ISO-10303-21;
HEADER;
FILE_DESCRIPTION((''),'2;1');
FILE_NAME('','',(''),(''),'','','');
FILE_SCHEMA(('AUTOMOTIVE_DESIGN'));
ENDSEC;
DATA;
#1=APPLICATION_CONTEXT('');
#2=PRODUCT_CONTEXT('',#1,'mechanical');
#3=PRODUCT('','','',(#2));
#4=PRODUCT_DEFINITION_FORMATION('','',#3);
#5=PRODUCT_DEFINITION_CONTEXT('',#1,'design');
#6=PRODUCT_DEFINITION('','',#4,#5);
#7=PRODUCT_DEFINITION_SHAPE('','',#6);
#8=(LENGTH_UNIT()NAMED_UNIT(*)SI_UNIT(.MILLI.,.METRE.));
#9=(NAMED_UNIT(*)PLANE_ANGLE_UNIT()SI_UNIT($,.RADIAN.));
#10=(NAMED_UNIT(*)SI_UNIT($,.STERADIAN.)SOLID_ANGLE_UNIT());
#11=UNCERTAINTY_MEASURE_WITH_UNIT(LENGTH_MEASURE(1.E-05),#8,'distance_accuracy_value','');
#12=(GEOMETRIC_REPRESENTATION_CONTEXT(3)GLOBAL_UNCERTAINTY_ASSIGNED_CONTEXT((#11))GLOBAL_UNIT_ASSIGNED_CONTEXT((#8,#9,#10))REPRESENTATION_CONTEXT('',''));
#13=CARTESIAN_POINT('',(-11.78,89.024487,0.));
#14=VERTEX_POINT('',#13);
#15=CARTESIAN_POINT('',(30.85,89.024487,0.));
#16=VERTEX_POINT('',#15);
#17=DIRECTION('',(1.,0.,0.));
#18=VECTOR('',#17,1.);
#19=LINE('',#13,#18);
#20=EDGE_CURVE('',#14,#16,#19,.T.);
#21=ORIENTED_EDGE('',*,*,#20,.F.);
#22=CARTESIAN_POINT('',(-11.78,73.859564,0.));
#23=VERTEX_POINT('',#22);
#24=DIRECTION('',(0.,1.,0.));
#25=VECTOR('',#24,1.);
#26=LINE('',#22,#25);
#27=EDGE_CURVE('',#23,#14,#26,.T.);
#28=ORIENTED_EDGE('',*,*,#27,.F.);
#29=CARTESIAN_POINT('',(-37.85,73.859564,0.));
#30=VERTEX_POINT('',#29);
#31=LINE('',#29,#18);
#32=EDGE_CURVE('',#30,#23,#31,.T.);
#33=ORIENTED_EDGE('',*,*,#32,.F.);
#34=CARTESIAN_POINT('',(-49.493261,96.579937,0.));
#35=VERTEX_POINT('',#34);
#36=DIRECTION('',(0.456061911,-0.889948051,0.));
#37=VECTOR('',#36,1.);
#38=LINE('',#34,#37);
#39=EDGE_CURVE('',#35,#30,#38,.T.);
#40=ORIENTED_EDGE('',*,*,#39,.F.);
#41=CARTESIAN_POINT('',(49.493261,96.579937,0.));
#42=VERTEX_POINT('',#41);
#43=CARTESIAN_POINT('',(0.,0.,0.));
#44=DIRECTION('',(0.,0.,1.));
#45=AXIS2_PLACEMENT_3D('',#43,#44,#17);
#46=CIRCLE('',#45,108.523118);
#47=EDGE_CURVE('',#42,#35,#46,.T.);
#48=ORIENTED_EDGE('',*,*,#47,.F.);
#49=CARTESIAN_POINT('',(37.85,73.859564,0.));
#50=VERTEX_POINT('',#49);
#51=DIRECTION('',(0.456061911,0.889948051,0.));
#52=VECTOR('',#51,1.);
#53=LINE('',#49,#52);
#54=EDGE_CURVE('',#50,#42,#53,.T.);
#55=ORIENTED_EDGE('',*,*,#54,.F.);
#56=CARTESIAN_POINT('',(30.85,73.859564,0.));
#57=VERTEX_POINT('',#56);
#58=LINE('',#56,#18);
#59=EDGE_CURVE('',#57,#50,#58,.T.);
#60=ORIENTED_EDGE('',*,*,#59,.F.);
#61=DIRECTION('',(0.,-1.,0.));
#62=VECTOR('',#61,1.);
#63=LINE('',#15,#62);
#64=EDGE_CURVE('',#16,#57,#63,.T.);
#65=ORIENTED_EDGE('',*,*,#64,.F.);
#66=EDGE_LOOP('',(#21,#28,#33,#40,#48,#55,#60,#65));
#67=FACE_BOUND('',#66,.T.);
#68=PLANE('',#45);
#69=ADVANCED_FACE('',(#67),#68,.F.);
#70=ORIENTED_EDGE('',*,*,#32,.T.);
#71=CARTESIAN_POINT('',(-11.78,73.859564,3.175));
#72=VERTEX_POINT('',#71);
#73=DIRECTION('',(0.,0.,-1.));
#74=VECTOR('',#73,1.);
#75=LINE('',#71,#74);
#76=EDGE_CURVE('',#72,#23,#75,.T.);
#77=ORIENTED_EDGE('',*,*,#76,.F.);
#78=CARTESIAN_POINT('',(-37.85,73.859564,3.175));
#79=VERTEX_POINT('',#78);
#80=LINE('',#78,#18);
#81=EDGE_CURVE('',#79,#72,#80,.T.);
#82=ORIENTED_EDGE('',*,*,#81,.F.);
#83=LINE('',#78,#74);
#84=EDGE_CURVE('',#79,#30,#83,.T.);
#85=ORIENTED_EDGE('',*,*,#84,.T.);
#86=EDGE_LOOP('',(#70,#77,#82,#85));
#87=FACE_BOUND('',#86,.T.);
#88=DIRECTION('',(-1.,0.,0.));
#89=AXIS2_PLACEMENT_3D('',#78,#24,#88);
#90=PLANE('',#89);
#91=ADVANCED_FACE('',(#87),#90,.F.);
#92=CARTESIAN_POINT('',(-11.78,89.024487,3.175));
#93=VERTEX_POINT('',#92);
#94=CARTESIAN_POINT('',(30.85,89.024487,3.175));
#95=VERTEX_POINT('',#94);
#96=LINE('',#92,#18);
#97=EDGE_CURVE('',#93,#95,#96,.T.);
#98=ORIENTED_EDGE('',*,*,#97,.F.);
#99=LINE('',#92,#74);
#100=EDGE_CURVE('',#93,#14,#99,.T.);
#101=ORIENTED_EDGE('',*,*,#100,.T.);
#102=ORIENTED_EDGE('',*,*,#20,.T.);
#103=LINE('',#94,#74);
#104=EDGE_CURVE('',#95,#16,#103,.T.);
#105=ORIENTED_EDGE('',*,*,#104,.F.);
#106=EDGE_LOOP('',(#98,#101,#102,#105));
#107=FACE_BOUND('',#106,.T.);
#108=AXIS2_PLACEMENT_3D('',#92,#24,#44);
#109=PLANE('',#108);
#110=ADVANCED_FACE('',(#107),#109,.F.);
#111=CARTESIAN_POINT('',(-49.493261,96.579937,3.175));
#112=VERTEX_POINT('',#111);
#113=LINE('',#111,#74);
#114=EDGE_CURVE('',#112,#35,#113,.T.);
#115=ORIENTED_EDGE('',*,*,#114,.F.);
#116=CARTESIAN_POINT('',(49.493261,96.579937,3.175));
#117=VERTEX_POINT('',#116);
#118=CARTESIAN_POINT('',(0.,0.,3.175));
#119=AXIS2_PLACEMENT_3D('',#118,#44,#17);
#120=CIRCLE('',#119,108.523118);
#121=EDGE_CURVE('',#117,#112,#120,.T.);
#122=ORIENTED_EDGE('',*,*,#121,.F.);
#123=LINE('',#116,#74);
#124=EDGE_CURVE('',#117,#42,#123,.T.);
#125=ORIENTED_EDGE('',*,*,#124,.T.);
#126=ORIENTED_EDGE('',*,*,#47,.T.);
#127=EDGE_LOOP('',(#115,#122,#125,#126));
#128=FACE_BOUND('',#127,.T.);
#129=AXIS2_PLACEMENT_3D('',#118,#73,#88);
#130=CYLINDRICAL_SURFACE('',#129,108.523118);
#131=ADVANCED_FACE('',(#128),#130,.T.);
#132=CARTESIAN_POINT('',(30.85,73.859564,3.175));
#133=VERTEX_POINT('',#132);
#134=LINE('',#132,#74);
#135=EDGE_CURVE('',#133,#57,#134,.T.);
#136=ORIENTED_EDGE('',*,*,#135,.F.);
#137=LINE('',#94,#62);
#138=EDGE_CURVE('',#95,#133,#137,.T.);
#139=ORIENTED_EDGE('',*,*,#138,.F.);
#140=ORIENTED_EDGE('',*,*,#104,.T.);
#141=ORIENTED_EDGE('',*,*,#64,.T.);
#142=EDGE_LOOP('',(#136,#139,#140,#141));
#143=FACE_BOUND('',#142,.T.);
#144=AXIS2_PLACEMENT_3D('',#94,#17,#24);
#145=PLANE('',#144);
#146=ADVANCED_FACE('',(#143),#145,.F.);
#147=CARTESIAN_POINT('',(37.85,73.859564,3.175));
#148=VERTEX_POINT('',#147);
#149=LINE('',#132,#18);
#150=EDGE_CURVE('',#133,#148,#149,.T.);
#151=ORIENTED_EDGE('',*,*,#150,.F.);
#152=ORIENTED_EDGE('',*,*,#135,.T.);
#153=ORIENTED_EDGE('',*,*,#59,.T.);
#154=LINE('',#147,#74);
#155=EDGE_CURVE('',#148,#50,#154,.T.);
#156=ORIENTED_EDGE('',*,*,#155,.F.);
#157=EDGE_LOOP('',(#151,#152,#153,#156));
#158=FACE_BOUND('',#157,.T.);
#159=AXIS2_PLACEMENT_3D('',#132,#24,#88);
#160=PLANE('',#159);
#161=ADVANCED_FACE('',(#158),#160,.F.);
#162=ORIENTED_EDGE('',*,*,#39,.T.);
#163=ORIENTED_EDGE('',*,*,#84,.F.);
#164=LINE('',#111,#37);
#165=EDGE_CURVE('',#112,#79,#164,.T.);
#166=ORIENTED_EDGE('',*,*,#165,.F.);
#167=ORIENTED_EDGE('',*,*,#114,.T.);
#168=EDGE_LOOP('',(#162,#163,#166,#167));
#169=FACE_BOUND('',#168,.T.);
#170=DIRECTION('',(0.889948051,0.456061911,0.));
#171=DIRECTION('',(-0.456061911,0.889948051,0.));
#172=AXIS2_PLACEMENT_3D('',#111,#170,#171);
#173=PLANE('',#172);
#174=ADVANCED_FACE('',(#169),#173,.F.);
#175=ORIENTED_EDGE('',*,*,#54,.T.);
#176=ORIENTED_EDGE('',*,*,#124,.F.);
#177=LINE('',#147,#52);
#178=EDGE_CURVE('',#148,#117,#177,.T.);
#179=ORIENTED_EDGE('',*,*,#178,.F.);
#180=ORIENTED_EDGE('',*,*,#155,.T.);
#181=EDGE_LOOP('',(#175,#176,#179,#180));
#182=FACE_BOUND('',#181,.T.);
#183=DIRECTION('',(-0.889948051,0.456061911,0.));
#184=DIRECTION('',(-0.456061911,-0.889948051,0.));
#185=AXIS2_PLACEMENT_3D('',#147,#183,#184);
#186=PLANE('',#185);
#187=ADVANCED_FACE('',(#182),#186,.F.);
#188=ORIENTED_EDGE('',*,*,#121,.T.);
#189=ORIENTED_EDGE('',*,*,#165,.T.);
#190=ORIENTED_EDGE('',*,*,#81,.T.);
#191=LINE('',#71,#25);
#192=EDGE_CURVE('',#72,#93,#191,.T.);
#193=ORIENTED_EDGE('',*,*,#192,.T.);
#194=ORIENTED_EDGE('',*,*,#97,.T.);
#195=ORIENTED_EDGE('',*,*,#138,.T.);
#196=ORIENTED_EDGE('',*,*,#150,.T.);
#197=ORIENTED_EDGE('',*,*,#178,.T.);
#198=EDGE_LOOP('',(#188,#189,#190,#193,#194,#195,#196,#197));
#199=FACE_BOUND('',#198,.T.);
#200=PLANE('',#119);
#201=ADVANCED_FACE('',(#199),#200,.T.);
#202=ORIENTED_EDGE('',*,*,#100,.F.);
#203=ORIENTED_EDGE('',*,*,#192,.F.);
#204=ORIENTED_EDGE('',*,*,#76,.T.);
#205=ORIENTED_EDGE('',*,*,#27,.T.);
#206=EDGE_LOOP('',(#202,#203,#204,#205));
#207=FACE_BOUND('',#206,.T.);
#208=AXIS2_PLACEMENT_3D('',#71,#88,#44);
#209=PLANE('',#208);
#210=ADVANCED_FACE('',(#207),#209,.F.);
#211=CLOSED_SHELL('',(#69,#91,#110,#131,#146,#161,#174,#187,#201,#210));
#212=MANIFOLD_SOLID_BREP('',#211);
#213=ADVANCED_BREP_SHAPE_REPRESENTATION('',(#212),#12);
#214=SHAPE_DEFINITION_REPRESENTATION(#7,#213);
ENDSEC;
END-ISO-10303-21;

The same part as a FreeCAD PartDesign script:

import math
import FreeCAD as App
import Part
import Sketcher
from FreeCAD import Vector

doc = App.newDocument("Part")
body = doc.addObject("PartDesign::Body", "Body")

# Sketch on XY plane
sketch1 = body.newObject("Sketcher::SketchObject", "Sketch")
sketch1.AttachmentSupport = (doc.getObject("XY_Plane"), [""])
sketch1.MapMode = "FlatFace"
sketch1.addGeometry([
    Part.LineSegment(Vector(-49, 97, 0), Vector(-38, 74, 0)),  # 0
    Part.LineSegment(Vector(-38, 74, 0), Vector(-12, 74, 0)),  # 1
    Part.LineSegment(Vector(-12, 74, 0), Vector(-12, 89, 0)),  # 2
    Part.LineSegment(Vector(-12, 89, 0), Vector(31, 89, 0)),  # 3
    Part.LineSegment(Vector(31, 89, 0), Vector(31, 74, 0)),  # 4
    Part.LineSegment(Vector(31, 74, 0), Vector(38, 74, 0)),  # 5
    Part.LineSegment(Vector(38, 74, 0), Vector(49, 97, 0)),  # 6
    Part.ArcOfCircle(Part.Circle(Vector(0, 0, 0), Vector(0, 0, 1), 109), math.radians(63), math.radians(117)),  # 7
], False)
sketch1.addConstraint([
    Sketcher.Constraint("Coincident", 0, 2, 1, 1),
    Sketcher.Constraint("Coincident", 1, 2, 2, 1),
    Sketcher.Constraint("Coincident", 2, 2, 3, 1),
    Sketcher.Constraint("Coincident", 3, 2, 4, 1),
    Sketcher.Constraint("Coincident", 4, 2, 5, 1),
    Sketcher.Constraint("Coincident", 5, 2, 6, 1),
    Sketcher.Constraint("Coincident", 6, 2, 7, 1),
    Sketcher.Constraint("Coincident", 7, 2, 0, 1),
    Sketcher.Constraint("Horizontal", 1),
    Sketcher.Constraint("Vertical", 2),
    Sketcher.Constraint("Horizontal", 3),
    Sketcher.Constraint("Vertical", 4),
    Sketcher.Constraint("Horizontal", 5),
    Sketcher.Constraint("Coincident", 7, 3, -1, 1),
    Sketcher.Constraint("Symmetric", 0, 2, 5, 2, -2),
    Sketcher.Constraint("Horizontal", 6, 2, 7, 2),
    Sketcher.Constraint("DistanceX", 5, 1, 5, 2, 7.0),
    Sketcher.Constraint("DistanceX", 1, 1, 1, 2, 26.07),
    Sketcher.Constraint("DistanceX", 3, 1, 3, 2, 42.63),
    Sketcher.Constraint("Distance", 0, 25.53),
    Sketcher.Constraint("Radius", 7, 108.523118),
    Sketcher.Constraint("DistanceY", 2, 1, 2, 2, 15.164924),
    Sketcher.Constraint("DistanceX", -1, 1, 6, 2, 49.493261),
])
pad1 = body.newObject("PartDesign::Pad", "Pad")
pad1.Profile = sketch1
pad1.Length = 3.175

doc.recompute()
